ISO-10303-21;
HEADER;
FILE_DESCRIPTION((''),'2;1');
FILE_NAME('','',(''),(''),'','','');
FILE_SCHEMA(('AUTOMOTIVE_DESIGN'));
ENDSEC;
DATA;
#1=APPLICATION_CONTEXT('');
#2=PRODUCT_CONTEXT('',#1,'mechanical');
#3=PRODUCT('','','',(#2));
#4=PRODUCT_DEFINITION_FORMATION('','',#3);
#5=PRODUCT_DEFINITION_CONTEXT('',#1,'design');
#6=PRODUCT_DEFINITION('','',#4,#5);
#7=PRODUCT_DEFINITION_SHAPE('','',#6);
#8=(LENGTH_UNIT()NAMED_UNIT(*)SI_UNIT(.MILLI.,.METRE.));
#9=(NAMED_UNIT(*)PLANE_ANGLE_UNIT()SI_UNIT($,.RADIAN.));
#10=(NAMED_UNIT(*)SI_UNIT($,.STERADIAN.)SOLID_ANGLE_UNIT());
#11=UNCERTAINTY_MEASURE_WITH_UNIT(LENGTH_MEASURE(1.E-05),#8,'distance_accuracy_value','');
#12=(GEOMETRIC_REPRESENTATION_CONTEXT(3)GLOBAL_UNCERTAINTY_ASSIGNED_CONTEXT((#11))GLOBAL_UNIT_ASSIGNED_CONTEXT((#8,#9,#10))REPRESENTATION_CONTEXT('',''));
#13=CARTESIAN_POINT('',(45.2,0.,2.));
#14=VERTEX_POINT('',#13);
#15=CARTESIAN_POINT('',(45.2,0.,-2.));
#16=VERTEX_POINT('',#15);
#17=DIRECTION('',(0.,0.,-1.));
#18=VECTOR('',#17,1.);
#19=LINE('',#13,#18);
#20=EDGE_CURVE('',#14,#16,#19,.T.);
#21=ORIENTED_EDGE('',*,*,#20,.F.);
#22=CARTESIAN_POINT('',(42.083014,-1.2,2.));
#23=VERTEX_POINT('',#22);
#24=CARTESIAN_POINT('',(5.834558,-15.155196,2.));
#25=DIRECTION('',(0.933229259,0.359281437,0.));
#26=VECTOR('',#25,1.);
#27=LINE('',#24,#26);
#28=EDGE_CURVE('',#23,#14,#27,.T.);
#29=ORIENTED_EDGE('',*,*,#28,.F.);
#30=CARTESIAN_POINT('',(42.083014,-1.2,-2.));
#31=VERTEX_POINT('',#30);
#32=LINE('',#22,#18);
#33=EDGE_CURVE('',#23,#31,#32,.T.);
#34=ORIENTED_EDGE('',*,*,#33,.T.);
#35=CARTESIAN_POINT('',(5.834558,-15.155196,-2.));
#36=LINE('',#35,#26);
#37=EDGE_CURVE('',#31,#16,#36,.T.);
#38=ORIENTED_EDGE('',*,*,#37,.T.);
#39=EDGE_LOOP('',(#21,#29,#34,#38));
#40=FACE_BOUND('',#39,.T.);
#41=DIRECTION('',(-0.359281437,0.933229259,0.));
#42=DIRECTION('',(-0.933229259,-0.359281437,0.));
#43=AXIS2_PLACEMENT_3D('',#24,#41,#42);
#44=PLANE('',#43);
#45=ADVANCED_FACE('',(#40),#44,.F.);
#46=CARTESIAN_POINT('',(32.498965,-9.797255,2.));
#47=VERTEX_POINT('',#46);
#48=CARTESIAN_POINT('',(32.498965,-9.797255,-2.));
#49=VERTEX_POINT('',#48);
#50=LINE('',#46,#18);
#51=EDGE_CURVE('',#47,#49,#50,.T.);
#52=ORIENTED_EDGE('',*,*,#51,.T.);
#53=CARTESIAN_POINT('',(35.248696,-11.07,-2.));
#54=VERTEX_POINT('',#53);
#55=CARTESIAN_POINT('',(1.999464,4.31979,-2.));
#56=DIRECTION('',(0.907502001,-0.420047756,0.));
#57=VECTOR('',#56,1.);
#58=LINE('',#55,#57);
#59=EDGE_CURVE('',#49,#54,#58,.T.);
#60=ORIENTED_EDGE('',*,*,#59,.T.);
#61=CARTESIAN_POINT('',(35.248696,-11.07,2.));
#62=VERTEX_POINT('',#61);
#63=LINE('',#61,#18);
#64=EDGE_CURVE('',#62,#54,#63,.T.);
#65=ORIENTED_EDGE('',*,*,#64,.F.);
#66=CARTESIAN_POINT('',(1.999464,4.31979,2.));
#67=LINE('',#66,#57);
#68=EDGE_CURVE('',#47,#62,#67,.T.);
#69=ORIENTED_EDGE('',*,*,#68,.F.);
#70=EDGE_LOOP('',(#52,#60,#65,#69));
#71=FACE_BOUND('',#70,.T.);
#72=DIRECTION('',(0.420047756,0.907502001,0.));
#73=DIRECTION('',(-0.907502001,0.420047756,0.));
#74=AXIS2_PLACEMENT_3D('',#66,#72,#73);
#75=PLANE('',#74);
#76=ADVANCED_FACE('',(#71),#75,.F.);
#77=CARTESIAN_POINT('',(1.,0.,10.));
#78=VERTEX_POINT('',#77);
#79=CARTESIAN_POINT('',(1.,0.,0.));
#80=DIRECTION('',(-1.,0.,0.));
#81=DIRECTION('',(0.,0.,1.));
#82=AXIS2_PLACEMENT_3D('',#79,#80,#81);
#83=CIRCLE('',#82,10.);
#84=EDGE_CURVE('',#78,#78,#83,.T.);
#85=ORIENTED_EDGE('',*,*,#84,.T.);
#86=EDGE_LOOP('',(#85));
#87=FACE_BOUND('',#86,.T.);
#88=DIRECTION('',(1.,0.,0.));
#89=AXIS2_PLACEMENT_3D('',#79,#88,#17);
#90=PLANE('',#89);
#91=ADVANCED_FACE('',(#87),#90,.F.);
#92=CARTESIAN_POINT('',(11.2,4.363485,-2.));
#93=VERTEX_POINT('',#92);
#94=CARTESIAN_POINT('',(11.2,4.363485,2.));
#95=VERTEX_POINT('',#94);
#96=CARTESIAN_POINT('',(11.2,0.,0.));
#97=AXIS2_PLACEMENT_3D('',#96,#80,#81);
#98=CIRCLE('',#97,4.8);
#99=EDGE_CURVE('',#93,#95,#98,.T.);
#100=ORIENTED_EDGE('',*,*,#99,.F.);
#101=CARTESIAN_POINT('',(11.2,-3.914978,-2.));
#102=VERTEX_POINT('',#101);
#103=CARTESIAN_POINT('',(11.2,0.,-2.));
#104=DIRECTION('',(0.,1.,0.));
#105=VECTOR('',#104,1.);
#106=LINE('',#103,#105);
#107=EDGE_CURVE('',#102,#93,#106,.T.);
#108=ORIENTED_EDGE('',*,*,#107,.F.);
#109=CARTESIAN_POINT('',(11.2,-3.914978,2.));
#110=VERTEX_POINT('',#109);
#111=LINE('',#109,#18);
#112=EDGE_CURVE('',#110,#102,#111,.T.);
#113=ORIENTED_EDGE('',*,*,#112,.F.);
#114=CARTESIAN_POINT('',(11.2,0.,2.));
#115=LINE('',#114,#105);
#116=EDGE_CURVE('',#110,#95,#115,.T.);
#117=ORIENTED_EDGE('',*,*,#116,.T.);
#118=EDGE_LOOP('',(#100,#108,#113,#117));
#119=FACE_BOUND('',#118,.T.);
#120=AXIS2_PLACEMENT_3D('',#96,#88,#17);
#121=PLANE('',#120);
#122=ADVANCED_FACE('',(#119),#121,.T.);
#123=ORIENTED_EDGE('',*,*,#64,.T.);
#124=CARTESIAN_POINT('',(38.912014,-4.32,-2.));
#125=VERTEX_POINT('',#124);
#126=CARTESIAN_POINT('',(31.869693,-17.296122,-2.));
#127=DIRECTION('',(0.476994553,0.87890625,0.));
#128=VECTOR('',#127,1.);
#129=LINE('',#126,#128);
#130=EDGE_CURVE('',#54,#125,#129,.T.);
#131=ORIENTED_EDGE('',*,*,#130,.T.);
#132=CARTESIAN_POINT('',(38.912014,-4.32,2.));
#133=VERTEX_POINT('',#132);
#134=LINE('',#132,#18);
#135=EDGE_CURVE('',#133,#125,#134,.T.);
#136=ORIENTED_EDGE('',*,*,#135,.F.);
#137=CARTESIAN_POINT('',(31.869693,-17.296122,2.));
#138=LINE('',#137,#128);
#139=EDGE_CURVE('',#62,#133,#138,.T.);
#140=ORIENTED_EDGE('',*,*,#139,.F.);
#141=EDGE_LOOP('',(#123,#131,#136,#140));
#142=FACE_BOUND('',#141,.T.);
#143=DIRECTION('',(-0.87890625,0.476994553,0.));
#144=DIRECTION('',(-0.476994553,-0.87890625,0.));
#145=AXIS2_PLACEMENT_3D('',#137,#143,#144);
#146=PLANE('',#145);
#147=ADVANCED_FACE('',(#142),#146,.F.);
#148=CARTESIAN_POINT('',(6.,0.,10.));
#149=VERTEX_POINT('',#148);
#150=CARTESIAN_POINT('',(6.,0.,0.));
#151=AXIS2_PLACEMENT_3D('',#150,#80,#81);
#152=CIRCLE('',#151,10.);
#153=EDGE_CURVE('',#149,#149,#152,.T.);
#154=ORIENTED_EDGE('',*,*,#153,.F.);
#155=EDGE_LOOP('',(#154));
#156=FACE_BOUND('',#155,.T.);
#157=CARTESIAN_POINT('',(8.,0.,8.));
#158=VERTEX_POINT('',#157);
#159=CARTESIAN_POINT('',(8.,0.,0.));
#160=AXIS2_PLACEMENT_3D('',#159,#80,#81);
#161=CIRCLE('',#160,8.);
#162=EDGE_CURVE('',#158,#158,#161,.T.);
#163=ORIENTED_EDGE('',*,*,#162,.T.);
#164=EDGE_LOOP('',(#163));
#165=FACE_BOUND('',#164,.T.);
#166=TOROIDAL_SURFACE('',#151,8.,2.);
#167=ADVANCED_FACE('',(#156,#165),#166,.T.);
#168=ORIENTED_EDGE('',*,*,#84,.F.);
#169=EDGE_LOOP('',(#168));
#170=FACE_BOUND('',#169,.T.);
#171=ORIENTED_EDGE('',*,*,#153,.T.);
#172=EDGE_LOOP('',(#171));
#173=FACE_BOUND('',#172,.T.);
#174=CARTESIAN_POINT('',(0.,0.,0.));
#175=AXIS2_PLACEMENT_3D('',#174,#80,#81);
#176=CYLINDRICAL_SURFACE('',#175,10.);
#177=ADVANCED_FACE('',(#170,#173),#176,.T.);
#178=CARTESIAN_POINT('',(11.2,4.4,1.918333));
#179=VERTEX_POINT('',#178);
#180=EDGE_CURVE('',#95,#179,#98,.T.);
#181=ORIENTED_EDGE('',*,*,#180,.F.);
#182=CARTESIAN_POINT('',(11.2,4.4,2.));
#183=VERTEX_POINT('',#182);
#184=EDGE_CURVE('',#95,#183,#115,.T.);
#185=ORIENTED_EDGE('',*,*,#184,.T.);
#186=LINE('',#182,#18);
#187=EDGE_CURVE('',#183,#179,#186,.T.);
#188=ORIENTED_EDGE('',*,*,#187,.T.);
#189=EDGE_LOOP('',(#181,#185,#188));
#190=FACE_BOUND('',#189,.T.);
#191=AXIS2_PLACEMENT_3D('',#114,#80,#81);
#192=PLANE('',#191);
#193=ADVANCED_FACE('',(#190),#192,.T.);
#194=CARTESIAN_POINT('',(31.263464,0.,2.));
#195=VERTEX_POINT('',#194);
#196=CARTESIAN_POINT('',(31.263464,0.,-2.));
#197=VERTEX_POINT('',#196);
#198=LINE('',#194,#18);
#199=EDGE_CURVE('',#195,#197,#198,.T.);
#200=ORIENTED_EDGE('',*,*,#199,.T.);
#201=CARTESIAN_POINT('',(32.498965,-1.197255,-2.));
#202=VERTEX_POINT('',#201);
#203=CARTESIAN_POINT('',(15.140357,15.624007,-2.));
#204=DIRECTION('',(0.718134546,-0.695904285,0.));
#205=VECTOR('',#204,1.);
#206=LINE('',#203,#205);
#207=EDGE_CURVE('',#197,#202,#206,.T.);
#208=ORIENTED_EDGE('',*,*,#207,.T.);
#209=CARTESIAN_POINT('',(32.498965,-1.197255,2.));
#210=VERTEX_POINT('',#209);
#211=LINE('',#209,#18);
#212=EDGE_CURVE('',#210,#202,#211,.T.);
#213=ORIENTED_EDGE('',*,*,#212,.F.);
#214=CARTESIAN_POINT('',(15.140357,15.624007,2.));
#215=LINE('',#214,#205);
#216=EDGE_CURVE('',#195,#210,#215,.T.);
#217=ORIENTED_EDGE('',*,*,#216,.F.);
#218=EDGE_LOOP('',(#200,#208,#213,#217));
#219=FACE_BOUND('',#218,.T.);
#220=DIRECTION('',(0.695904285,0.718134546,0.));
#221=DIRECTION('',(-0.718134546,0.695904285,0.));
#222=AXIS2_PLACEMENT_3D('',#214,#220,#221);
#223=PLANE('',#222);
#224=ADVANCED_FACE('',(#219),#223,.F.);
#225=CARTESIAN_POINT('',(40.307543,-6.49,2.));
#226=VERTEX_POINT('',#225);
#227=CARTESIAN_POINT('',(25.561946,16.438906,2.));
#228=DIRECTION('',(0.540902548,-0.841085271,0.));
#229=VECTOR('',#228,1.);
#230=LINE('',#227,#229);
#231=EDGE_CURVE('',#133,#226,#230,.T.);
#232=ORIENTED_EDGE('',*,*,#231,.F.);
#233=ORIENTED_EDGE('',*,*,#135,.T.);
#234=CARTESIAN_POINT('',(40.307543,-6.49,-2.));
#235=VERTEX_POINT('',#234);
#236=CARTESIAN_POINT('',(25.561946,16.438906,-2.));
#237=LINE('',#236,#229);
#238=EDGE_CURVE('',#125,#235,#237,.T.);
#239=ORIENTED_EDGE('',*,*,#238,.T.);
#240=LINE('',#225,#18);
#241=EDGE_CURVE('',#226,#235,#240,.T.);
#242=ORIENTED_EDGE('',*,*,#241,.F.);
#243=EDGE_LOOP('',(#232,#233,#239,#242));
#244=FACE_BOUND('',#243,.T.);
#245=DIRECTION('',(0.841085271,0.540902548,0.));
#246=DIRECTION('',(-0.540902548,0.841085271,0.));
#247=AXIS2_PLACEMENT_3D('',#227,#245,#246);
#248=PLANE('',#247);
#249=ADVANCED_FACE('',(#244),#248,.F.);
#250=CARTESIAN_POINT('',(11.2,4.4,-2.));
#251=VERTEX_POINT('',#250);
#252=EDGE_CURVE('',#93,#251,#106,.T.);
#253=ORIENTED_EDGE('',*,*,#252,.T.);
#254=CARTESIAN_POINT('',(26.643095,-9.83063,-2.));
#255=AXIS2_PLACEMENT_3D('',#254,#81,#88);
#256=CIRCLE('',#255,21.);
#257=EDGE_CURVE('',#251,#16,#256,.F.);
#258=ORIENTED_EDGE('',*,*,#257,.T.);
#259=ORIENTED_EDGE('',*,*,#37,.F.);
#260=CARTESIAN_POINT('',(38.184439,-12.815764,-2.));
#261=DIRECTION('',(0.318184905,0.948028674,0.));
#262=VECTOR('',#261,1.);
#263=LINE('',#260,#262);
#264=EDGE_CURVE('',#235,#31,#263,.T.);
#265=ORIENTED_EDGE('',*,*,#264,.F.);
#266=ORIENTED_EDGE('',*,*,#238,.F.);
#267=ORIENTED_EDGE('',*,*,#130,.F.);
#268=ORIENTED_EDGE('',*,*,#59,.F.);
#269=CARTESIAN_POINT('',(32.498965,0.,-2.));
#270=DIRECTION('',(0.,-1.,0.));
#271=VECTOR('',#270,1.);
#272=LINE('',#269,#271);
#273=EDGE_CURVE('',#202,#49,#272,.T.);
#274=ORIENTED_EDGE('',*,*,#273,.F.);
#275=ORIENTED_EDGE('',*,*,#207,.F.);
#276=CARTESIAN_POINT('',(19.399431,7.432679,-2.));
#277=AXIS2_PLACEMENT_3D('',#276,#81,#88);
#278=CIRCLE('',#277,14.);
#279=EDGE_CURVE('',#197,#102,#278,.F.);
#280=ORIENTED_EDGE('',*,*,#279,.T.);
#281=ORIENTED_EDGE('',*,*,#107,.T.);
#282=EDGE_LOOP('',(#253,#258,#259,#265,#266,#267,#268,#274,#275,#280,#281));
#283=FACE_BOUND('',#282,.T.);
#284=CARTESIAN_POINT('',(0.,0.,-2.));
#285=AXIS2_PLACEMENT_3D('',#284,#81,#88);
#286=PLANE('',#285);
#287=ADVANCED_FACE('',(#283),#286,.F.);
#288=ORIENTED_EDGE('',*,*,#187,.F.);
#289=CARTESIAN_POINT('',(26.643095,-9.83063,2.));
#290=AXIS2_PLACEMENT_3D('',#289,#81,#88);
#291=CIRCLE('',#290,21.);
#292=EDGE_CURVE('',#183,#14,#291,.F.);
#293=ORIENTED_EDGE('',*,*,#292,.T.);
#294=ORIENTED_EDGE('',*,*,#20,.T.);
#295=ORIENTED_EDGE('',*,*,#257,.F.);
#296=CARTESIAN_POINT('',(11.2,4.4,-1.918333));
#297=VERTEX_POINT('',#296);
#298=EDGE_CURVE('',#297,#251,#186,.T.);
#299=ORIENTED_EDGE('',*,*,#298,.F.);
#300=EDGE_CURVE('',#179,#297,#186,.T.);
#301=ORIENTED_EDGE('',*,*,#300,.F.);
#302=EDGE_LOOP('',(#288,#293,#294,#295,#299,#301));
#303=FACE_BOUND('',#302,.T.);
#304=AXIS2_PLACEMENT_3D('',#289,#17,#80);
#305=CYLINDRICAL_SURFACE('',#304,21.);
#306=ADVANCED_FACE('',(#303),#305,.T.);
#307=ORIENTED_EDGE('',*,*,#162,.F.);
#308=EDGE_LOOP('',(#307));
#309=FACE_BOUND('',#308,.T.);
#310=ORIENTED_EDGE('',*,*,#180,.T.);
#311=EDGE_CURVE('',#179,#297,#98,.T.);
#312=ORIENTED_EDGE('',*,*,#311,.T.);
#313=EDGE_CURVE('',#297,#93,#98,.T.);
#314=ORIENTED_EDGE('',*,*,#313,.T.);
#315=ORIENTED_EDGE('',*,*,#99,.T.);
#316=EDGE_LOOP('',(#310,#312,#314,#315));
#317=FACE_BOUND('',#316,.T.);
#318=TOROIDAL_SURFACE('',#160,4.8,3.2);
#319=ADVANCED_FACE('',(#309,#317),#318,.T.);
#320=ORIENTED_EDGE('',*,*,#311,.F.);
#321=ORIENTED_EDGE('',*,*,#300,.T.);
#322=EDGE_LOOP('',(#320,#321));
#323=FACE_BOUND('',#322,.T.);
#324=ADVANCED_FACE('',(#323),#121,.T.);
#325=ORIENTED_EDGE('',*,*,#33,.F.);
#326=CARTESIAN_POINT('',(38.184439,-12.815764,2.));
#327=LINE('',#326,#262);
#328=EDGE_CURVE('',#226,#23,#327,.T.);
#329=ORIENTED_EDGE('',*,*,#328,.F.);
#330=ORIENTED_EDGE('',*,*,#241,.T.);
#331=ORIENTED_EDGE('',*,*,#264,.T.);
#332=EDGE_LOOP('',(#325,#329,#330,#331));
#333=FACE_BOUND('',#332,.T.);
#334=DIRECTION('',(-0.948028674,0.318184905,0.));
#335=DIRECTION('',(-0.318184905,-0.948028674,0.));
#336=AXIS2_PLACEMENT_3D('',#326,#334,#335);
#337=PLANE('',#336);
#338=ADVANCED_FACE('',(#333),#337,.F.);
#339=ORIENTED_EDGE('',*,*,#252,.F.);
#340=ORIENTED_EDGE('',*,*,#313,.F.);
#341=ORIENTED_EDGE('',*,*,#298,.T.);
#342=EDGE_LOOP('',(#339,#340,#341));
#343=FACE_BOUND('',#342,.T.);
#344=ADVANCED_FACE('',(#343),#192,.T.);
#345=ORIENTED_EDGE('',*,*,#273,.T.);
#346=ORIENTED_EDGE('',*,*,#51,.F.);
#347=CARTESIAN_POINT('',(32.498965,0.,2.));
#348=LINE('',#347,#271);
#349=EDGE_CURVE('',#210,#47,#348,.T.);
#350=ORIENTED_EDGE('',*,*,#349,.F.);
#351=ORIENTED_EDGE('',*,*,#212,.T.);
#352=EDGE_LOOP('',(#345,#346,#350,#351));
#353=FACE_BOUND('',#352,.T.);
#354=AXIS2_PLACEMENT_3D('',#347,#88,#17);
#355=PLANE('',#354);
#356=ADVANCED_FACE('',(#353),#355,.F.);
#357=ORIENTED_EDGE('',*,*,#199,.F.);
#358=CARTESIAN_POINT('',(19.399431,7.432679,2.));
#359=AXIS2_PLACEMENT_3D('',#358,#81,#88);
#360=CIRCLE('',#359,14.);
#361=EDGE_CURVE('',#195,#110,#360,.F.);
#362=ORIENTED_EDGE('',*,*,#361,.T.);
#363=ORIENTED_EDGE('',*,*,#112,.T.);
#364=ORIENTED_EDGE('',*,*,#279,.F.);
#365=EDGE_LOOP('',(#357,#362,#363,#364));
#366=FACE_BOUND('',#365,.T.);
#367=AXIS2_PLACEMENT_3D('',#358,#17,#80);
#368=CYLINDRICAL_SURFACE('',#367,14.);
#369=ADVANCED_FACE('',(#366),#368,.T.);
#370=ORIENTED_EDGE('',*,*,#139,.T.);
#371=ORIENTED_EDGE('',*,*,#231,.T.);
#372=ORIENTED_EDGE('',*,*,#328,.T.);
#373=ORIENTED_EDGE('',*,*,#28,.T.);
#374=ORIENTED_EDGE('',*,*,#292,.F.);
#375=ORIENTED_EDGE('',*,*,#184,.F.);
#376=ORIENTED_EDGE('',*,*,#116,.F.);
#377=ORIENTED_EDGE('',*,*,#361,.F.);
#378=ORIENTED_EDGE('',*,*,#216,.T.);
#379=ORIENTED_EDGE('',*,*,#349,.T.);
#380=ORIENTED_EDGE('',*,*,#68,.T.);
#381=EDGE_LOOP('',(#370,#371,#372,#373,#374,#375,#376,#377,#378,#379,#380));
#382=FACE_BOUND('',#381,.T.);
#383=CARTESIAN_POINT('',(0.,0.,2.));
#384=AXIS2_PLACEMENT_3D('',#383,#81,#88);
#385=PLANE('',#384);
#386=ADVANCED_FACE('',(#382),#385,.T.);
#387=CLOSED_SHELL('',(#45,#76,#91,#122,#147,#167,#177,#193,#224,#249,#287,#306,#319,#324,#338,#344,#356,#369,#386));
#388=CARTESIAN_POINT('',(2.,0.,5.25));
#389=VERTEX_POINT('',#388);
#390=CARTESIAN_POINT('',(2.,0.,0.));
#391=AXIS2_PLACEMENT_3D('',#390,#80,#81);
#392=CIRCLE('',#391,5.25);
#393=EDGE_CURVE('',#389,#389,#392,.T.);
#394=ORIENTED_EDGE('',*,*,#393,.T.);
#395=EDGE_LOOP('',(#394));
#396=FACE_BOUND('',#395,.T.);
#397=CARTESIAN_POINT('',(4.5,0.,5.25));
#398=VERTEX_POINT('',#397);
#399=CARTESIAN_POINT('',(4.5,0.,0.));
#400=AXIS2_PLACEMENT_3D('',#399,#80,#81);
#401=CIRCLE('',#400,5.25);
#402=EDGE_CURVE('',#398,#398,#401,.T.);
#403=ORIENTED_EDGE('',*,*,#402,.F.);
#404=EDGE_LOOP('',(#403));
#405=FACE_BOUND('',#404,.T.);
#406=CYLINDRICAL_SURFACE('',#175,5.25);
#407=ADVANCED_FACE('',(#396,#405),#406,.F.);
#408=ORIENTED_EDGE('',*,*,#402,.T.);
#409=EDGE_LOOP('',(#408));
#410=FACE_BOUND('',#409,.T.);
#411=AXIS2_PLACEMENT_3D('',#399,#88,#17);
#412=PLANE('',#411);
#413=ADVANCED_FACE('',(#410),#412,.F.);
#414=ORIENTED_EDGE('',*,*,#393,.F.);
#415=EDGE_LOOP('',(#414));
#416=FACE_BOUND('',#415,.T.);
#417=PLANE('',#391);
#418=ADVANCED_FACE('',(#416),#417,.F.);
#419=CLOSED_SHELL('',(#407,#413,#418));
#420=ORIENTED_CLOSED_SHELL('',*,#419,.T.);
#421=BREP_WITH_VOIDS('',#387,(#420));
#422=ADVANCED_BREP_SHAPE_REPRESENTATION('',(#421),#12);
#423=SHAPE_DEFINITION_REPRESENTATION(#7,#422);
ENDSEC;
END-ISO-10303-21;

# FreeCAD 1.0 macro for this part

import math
import FreeCAD as App
import Part
import Sketcher

doc = App.newDocument("Part")
body = doc.addObject("PartDesign::Body", "Body")

sketch1 = body.newObject("Sketcher::SketchObject", "Sketch")
sketch1.AttachmentSupport = (doc.getObject("XY_Plane"), [""])
sketch1.MapMode = "FlatFace"
sketch1.addGeometry([
    Part.LineSegment(App.Vector(6, 10, 0), App.Vector(1, 10, 0)),
    Part.LineSegment(App.Vector(1, 10, 0), App.Vector(1, 0, 0)),
    Part.LineSegment(App.Vector(1, 0, 0), App.Vector(2, 0, 0)),
    Part.LineSegment(App.Vector(2, 0, 0), App.Vector(2, 5.2, 0)),
    Part.LineSegment(App.Vector(2, 5.2, 0), App.Vector(4.5, 5.2, 0)),
    Part.LineSegment(App.Vector(4.5, 5.2, 0), App.Vector(4.5, 0, 0)),
    Part.LineSegment(App.Vector(4.5, 0, 0), App.Vector(11.2, 0, 0)),
    Part.LineSegment(App.Vector(11.2, 0, 0), App.Vector(11.2, 4.8, 0)),
    Part.ArcOfCircle(Part.Circle(App.Vector(8, 4.8, 0), App.Vector(0, 0, 1), 3.2), math.radians(0), math.radians(90)),
    Part.ArcOfCircle(Part.Circle(App.Vector(6, 8, 0), App.Vector(0, 0, 1), 2), math.radians(0), math.radians(90)),
], False)
sketch1.addConstraint([
    Sketcher.Constraint("Coincident", 0, 2, 1, 1),
    Sketcher.Constraint("Coincident", 1, 2, 2, 1),
    Sketcher.Constraint("Coincident", 2, 2, 3, 1),
    Sketcher.Constraint("Coincident", 3, 2, 4, 1),
    Sketcher.Constraint("Coincident", 4, 2, 5, 1),
    Sketcher.Constraint("Coincident", 5, 2, 6, 1),
    Sketcher.Constraint("Coincident", 6, 2, 7, 1),
    Sketcher.Constraint("Tangent", 7, 2, 8, 1),
    Sketcher.Constraint("Coincident", 8, 2, 9, 1),
    Sketcher.Constraint("Tangent", 9, 2, 0, 1),
    Sketcher.Constraint("Horizontal", 0),
    Sketcher.Constraint("Vertical", 1),
    Sketcher.Constraint("Horizontal", 2),
    Sketcher.Constraint("Vertical", 3),
    Sketcher.Constraint("Horizontal", 4),
    Sketcher.Constraint("Vertical", 5),
    Sketcher.Constraint("Horizontal", 6),
    Sketcher.Constraint("Vertical", 7),
    Sketcher.Constraint("PointOnObject", 1, 2, -1),
    Sketcher.Constraint("PointOnObject", 5, 2, -1),
    Sketcher.Constraint("Horizontal", 9, 3, 8, 2),
    Sketcher.Constraint("Radius", 9, 2.0),
    Sketcher.Constraint("Radius", 8, 3.2),
    Sketcher.Constraint("DistanceX", 0, 2, 0, 1, 5.0),
    Sketcher.Constraint("DistanceX", 2, 1, 2, 2, 1.0),
    Sketcher.Constraint("DistanceY", 1, 2, 1, 1, 10.0),
    Sketcher.Constraint("DistanceX", 4, 1, 4, 2, 2.5),
    Sketcher.Constraint("DistanceX", 6, 1, 6, 2, 6.7),
    Sketcher.Constraint("DistanceX", -1, 1, 8, 3, 8.0),
    Sketcher.Constraint("DistanceY", 3, 1, 3, 2, 5.25),
])
revolution = body.newObject("PartDesign::Revolution", "Revolution")
revolution.Profile = sketch1
revolution.ReferenceAxis = (sketch1, ["H_Axis"])
revolution.Angle = 360

sketch2 = body.newObject("Sketcher::SketchObject", "Sketch001")
sketch2.AttachmentSupport = (doc.getObject("XY_Plane"), [""])
sketch2.MapMode = "FlatFace"
sketch2.addGeometry([
    Part.ArcOfCircle(Part.Circle(App.Vector(26.6, -9.8, 0), App.Vector(0, 0, 1), 21), math.radians(28), math.radians(137)),
    Part.LineSegment(App.Vector(11.2, 4.4, 0), App.Vector(11.2, -3.9, 0)),
    Part.ArcOfCircle(Part.Circle(App.Vector(19.4, 7.4, 0), App.Vector(0, 0, 1), 14), math.radians(-126), math.radians(-32)),
    Part.LineSegment(App.Vector(31.3, 0, 0), App.Vector(32.5, -1.2, 0)),
    Part.LineSegment(App.Vector(32.5, -1.2, 0), App.Vector(32.5, -9.8, 0)),
    Part.LineSegment(App.Vector(32.5, -9.8, 0), App.Vector(35.2, -11.1, 0)),
    Part.LineSegment(App.Vector(35.2, -11.1, 0), App.Vector(38.9, -4.3, 0)),
    Part.LineSegment(App.Vector(38.9, -4.3, 0), App.Vector(40.3, -6.5, 0)),
    Part.LineSegment(App.Vector(40.3, -6.5, 0), App.Vector(42.1, -1.2, 0)),
    Part.LineSegment(App.Vector(42.1, -1.2, 0), App.Vector(45.2, 0, 0)),
], False)
sketch2.addConstraint([
    Sketcher.Constraint("Coincident", 0, 2, 1, 1),
    Sketcher.Constraint("Coincident", 1, 2, 2, 1),
    Sketcher.Constraint("Coincident", 2, 2, 3, 1),
    Sketcher.Constraint("Coincident", 3, 2, 4, 1),
    Sketcher.Constraint("Coincident", 4, 2, 5, 1),
    Sketcher.Constraint("Coincident", 5, 2, 6, 1),
    Sketcher.Constraint("Coincident", 6, 2, 7, 1),
    Sketcher.Constraint("Coincident", 7, 2, 8, 1),
    Sketcher.Constraint("Coincident", 8, 2, 9, 1),
    Sketcher.Constraint("Coincident", 9, 2, 0, 1),
    Sketcher.Constraint("Vertical", 1),
    Sketcher.Constraint("Vertical", 4),
    Sketcher.Constraint("PointOnObject", 2, 2, -1),
    Sketcher.Constraint("PointOnObject", 9, 2, -1),
    Sketcher.Constraint("Radius", 0, 21.0),
    Sketcher.Constraint("Radius", 2, 14.0),
    Sketcher.Constraint("DistanceY", 4, 2, 4, 1, 8.6),
    Sketcher.Constraint("DistanceX", -1, 1, 0, 2, 11.2),
    Sketcher.Constraint("DistanceY", -1, 1, 0, 2, 4.4),
    Sketcher.Constraint("DistanceY", 8, 2, -1, 1, 1.2),
    Sketcher.Constraint("DistanceX", -1, 1, 9, 2, 45.2),
    Sketcher.Constraint("Distance", 5, 3.03),
    Sketcher.Constraint("Distance", 6, 7.68),
    Sketcher.Constraint("Distance", 7, 2.58),
    Sketcher.Constraint("Distance", 8, 5.58),
    Sketcher.Constraint("Distance", 9, 3.34),
    Sketcher.Constraint("DistanceY", 5, 2, -1, 1, 11.07),
    Sketcher.Constraint("DistanceY", 6, 2, -1, 1, 4.32),
    Sketcher.Constraint("DistanceY", 7, 2, -1, 1, 6.49),
    Sketcher.Constraint("DistanceY", 1, 2, 1, 1, 8.314978),
    Sketcher.Constraint("DistanceX", 2, 2, 3, 2, 1.235501),
    Sketcher.Constraint("Distance", 3, 1.720431),
])
pad1 = body.newObject("PartDesign::Pad", "Pad")
pad1.Profile = sketch2
pad1.Length = 4
pad1.Midplane = True

doc.recompute()
